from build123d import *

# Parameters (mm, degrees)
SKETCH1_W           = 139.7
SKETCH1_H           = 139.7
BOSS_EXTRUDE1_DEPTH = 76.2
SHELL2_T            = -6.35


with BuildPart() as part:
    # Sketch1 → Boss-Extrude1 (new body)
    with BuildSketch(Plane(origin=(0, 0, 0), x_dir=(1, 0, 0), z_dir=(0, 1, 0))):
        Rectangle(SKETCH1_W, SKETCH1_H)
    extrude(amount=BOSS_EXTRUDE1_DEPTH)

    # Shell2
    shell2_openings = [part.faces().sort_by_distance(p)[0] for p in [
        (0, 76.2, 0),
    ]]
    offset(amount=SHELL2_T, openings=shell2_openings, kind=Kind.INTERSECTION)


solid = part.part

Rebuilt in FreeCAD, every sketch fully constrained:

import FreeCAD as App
import Part
import Sketcher
from FreeCAD import Vector
Q = App.Units.Quantity


def faces_at(feature, points):
    """Names of the faces that lie closest to the given points."""
    faces = feature.Shape.Faces
    near = lambda p: min(range(len(faces)), key=lambda i: faces[i].distToShape(Part.Vertex(*p))[0])
    return sorted({f"Face{near(p) + 1}" for p in points})

doc = App.newDocument("Part")
body = doc.addObject("PartDesign::Body", "Body")

sketch1 = body.newObject("Sketcher::SketchObject", "Sketch")
sketch1.AttachmentSupport = (doc.getObject("XZ_Plane"), [""])
sketch1.MapMode = "FlatFace"
sketch1.addGeometry([
    Part.LineSegment(Vector(-70, -70, 0), Vector(-70, 70, 0)),
    Part.LineSegment(Vector(-70, 70, 0), Vector(70, 70, 0)),
    Part.LineSegment(Vector(70, 70, 0), Vector(70, -70, 0)),
    Part.LineSegment(Vector(70, -70, 0), Vector(-70, -70, 0)),
], False)
sketch1.addConstraint([
    Sketcher.Constraint("Coincident", 0, 2, 1, 1),
    Sketcher.Constraint("Coincident", 1, 2, 2, 1),
    Sketcher.Constraint("Coincident", 2, 2, 3, 1),
    Sketcher.Constraint("Coincident", 3, 2, 0, 1),
    Sketcher.Constraint("Vertical", 0),
    Sketcher.Constraint("Horizontal", 1),
    Sketcher.Constraint("Vertical", 2),
    Sketcher.Constraint("Horizontal", 3),
    Sketcher.Constraint("Symmetric", 0, 2, 2, 2, -1, 1),
    Sketcher.Constraint("Equal", 3, 0),
    Sketcher.Constraint("DistanceX", 1, 1, 1, 2, Q("5.5 in")),
])
pad1 = body.newObject("PartDesign::Pad", "Pad")
pad1.Profile = sketch1
pad1.Length = Q("3 in")
pad1.Reversed = True
doc.recompute()

thickness = body.newObject("PartDesign::Thickness", "Thickness")
thickness.Base = (pad1, faces_at(pad1, [(0, 76.2, 0)]))
thickness.Value = Q("0.25 in")
thickness.Reversed = True
thickness.Join = "Intersection"

doc.recompute()
